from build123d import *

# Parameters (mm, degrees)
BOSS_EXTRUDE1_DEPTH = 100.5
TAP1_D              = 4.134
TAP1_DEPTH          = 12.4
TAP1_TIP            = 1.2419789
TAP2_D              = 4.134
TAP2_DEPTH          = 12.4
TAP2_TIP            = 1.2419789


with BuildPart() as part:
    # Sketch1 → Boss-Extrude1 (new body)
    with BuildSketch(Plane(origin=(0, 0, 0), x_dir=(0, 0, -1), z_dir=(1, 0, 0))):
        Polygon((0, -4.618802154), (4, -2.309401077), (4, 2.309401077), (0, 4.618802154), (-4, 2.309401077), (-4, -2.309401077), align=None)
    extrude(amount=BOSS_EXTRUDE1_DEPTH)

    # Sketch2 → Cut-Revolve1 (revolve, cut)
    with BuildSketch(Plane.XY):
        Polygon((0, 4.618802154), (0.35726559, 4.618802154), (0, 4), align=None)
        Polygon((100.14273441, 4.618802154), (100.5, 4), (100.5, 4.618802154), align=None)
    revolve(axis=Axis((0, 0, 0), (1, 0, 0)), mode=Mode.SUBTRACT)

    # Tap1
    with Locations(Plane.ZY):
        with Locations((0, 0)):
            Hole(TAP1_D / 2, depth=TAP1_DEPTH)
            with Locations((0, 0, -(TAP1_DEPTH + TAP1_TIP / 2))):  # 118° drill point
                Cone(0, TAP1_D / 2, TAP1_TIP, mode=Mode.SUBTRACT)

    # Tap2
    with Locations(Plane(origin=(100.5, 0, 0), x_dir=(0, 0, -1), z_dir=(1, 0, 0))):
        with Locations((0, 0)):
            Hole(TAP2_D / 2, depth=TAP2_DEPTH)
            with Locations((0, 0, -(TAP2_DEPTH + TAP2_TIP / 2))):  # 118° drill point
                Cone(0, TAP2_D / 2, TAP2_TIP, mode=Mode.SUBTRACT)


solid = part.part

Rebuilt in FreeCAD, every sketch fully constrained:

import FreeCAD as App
import Part
import Sketcher

V = App.Vector
Q = App.Units.Quantity


def add_polygon(sketch, points):
    """Adds a closed chain of lines whose ends are joined by coincident constraints."""
    first, n = sketch.GeometryCount, len(points)
    for a, b in zip(points, points[1:] + points[:1]):
        sketch.addGeometry(Part.LineSegment(App.Vector(*a, 0), App.Vector(*b, 0)), False)
    for i in range(n):
        sketch.addConstraint(Sketcher.Constraint("Coincident", first + i, 2, first + (i + 1) % n, 1))

doc = App.newDocument("Part")
params = doc.addObject("Spreadsheet::Sheet", "Params")
for row, (alias, value) in enumerate([
    ("pad1_length", "100.5 mm"),
    ("groove_angle", "360 deg"),
    ("hole_diameter", "4.134 mm"),
    ("hole_depth", "12.4 mm"),
    ("hole2_diameter", "4.134 mm"),
    ("hole2_depth", "12.4 mm"),
], start=1):
    params.set(f"A{row}", alias)
    params.set(f"B{row}", "=" + value)
    params.setAlias(f"B{row}", alias)

body = doc.addObject("PartDesign::Body", "Body")

sketch1 = doc.addObject("Sketcher::SketchObject", "Sketch")
body.addObject(sketch1)
sketch1.AttachmentSupport = (doc.YZ_Plane, [""])
sketch1.MapMode = "FlatFace"
add_polygon(sketch1, [(-4.6, 0), (-2.3, -4), (2.3, -4), (4.6, 0), (2.3, 4), (-2.3, 4)])
sketch1.addConstraint(Sketcher.Constraint("Horizontal", 1))
sketch1.addConstraint(Sketcher.Constraint("Horizontal", 4))
sketch1.addConstraint(Sketcher.Constraint("Symmetric", 0, 2, 3, 2, -1, 1))
sketch1.addConstraint(Sketcher.Constraint("Symmetric", 2, 2, 5, 2, -1, 1))
sketch1.addConstraint(Sketcher.Constraint("PointOnObject", 2, 2, -1))
sketch1.addConstraint(Sketcher.Constraint("Parallel", 2, 5))
sketch1.addConstraint(Sketcher.Constraint("Vertical", 1, 2, 3, 2))
sketch1.addConstraint(Sketcher.Constraint("Angle", 0, Q("-60 deg")))
sketch1.addConstraint(Sketcher.Constraint("DistanceY", 0, 2, -1, 1, 4.0))
sketch1.addConstraint(Sketcher.Constraint("DistanceX", 0, 2, -1, 1, 2.309401))
pad1 = doc.addObject("PartDesign::Pad", "Pad")
body.addObject(pad1)
pad1.Profile = sketch1
pad1.setExpression("Length", "Params.pad1_length")

sketch2 = doc.addObject("Sketcher::SketchObject", "Sketch001")
body.addObject(sketch2)
sketch2.AttachmentSupport = (doc.XY_Plane, [""])
sketch2.MapMode = "FlatFace"
add_polygon(sketch2, [(0.36, 4.62), (0, 4.62), (0, 4)])
add_polygon(sketch2, [(100.14, 4.62), (100.5, 4), (100.5, 4.62)])
sketch2.addConstraint(Sketcher.Constraint("Horizontal", 0))
sketch2.addConstraint(Sketcher.Constraint("Vertical", 1))
sketch2.addConstraint(Sketcher.Constraint("Vertical", 4))
sketch2.addConstraint(Sketcher.Constraint("Horizontal", 5))
sketch2.addConstraint(Sketcher.Constraint("PointOnObject", 0, 2, -2))
sketch2.addConstraint(Sketcher.Constraint("Horizontal", 1, 2, 3, 2))
sketch2.addConstraint(Sketcher.Constraint("Horizontal", 2, 2, 4, 2))
sketch2.addConstraint(Sketcher.Constraint("Equal", 0, 5))
sketch2.addConstraint(Sketcher.Constraint("Angle", 2, Q("60 deg")))
sketch2.addConstraint(Sketcher.Constraint("DistanceY", -1, 1, 1, 2, 4.0))
sketch2.addConstraint(Sketcher.Constraint("DistanceX", -1, 1, 3, 2, 100.5))
sketch2.addConstraint(Sketcher.Constraint("Distance", 2, 0.714531))
groove = doc.addObject("PartDesign::Groove", "Groove")
body.addObject(groove)
groove.Profile = sketch2
groove.ReferenceAxis = (sketch2, ["H_Axis"])
groove.setExpression("Angle", "Params.groove_angle")

sketch3 = doc.addObject("Sketcher::SketchObject", "Sketch002")
body.addObject(sketch3)
sketch3.AttachmentSupport = (doc.YZ_Plane, [""])
sketch3.MapMode = "FlatFace"
sketch3.addGeometry(Part.Circle(V(0, 0, 0), V(0, 0, 1), 2.1), False)
sketch3.addConstraint(Sketcher.Constraint("Coincident", 0, 3, -1, 1))
sketch3.addConstraint(Sketcher.Constraint("Diameter", 0, 4.134))
doc.recompute()
hole = doc.addObject("PartDesign::Hole", "Hole")
body.addObject(hole)
hole.Profile = sketch3
hole.ThreadType = "None"
hole.setExpression("Diameter", "Params.hole_diameter")
hole.DepthType = "Dimension"
hole.setExpression("Depth", "Params.hole_depth")
hole.DrillPoint = "Angled"
hole.DrillPointAngle = 118
hole.Reversed = True

sketch4 = doc.addObject("Sketcher::SketchObject", "Sketch003")
body.addObject(sketch4)
sketch4.AttachmentSupport = (doc.YZ_Plane, [""])
sketch4.MapMode = "FlatFace"
sketch4.AttachmentOffset = App.Placement(V(0, 0, 100.5), App.Rotation())
sketch4.addGeometry(Part.Circle(V(0, 0, 0), V(0, 0, 1), 2.1), False)
sketch4.addConstraint(Sketcher.Constraint("Coincident", 0, 3, -1, 1))
sketch4.addConstraint(Sketcher.Constraint("Diameter", 0, 4.134))
doc.recompute()
hole2 = doc.addObject("PartDesign::Hole", "Hole001")
body.addObject(hole2)
hole2.Profile = sketch4
hole2.ThreadType = "None"
hole2.setExpression("Diameter", "Params.hole2_diameter")
hole2.DepthType = "Dimension"
hole2.setExpression("Depth", "Params.hole2_depth")
hole2.DrillPoint = "Angled"
hole2.DrillPointAngle = 118

doc.recompute()
